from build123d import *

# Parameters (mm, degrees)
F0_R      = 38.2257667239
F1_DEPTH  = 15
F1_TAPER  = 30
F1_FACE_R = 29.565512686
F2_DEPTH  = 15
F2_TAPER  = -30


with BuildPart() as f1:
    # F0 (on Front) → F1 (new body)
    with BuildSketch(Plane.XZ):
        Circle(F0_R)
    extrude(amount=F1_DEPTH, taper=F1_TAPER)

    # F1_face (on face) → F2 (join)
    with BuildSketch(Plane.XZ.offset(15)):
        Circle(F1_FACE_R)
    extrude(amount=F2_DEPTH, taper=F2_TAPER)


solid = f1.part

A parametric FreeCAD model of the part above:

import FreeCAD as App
import Part
import Sketcher

doc = App.newDocument("Part")
body = doc.addObject("PartDesign::Body", "Body")

# Sketch on XZ plane
sketch1 = body.newObject("Sketcher::SketchObject", "Sketch")
sketch1.AttachmentSupport = (doc.getObject("XZ_Plane"), [""])
sketch1.MapMode = "FlatFace"
sketch1.addGeometry(Part.Circle(App.Vector(0, 0, 0), App.Vector(0, 0, 1), 38), False)
sketch1.addConstraint(Sketcher.Constraint("Coincident", 0, 3, -1, 1))
sketch1.addConstraint(Sketcher.Constraint("Diameter", 0, 76.451533))
pad1 = body.newObject("PartDesign::Pad", "Pad")
pad1.Profile = sketch1
pad1.Length = 15
pad1.TaperAngle = -30

# Sketch on XZ plane
sketch2 = body.newObject("Sketcher::SketchObject", "Sketch001")
sketch2.AttachmentSupport = (doc.getObject("XZ_Plane"), [""])
sketch2.MapMode = "FlatFace"
sketch2.AttachmentOffset = App.Placement(App.Vector(0, 0, 15), App.Rotation())
sketch2.addGeometry(Part.Circle(App.Vector(0, 0, 0), App.Vector(0, 0, 1), 30), False)
sketch2.addConstraint(Sketcher.Constraint("Coincident", 0, 3, -1, 1))
sketch2.addConstraint(Sketcher.Constraint("Diameter", 0, 59.131025))
pad2 = body.newObject("PartDesign::Pad", "Pad001")
pad2.Profile = sketch2
pad2.Length = 15
pad2.TaperAngle = 30

doc.recompute()
